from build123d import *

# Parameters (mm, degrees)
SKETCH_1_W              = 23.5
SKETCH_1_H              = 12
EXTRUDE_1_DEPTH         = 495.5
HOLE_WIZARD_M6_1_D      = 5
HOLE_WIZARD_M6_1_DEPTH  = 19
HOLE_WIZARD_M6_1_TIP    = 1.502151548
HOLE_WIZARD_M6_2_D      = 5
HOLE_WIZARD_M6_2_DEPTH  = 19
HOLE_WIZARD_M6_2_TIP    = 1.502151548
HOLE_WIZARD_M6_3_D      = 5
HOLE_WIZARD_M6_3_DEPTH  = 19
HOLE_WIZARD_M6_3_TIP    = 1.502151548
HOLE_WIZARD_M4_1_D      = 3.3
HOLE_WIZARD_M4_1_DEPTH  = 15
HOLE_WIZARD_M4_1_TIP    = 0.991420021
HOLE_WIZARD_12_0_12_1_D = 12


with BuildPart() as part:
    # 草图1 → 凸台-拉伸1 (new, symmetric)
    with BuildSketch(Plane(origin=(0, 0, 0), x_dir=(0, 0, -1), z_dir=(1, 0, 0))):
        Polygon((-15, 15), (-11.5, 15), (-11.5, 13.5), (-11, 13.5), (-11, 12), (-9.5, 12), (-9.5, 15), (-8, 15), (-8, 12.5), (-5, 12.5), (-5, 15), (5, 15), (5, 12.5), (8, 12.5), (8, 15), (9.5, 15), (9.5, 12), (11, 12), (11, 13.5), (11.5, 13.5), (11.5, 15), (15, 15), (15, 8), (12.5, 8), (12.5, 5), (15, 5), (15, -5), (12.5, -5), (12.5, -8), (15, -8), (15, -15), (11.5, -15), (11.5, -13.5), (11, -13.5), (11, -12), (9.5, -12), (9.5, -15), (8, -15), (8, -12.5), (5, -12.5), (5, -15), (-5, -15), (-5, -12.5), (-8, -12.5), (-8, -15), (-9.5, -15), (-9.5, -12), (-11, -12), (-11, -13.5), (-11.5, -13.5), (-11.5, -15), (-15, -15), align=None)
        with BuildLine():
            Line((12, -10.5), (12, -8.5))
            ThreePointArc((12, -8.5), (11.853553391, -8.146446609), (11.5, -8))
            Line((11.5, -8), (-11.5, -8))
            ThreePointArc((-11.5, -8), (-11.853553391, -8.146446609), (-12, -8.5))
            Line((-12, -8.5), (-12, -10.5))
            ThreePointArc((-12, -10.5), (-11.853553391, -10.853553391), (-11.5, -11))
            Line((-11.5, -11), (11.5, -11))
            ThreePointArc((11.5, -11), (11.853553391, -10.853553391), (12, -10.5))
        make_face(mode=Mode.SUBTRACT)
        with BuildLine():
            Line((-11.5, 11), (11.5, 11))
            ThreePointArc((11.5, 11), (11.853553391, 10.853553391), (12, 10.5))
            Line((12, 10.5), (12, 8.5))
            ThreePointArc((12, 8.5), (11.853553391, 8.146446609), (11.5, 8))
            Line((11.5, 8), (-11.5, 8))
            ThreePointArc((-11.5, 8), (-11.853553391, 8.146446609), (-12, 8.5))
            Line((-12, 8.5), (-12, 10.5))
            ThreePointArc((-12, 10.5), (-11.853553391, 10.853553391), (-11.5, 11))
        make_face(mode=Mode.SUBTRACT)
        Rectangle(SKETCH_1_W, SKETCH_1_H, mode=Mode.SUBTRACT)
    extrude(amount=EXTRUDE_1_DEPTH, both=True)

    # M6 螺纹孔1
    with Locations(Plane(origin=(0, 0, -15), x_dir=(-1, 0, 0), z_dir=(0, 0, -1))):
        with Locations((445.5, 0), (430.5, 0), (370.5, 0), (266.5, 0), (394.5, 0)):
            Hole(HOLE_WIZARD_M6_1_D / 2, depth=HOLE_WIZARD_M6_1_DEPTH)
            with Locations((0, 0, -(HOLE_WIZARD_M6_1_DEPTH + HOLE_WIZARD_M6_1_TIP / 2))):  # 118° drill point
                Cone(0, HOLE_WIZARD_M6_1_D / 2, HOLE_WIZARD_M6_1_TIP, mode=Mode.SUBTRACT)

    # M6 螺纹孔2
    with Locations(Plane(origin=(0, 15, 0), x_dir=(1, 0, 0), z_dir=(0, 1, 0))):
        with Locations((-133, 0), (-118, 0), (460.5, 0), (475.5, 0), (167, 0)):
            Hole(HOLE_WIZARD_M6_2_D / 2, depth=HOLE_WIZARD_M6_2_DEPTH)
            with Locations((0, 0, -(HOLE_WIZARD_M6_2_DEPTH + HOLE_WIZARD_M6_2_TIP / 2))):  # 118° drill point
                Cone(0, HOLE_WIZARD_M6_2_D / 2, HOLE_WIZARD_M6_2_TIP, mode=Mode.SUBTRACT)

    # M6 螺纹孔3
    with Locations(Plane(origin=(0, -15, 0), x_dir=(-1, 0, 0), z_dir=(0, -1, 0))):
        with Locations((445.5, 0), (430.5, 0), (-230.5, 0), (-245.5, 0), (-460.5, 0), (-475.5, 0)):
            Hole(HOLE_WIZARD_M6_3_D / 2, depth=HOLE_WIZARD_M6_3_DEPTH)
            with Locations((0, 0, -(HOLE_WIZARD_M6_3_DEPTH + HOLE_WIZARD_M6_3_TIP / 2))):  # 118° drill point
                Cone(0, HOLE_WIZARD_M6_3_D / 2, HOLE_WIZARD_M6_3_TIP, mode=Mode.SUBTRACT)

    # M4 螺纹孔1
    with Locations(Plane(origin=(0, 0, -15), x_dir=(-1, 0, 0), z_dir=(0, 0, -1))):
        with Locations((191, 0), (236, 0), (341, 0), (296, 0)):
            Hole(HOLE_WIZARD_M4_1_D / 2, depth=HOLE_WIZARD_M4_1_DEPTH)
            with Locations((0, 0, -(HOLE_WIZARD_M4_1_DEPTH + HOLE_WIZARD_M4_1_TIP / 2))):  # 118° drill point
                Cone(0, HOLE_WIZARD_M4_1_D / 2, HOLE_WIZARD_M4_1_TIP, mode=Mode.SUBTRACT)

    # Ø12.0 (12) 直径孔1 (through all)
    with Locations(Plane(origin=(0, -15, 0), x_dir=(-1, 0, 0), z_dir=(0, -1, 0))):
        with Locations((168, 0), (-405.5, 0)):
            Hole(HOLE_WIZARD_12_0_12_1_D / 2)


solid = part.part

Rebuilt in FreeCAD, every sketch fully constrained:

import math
import FreeCAD as App
import Part
import Sketcher

V = App.Vector

doc = App.newDocument("Part")
body = doc.addObject("PartDesign::Body", "Body")

# Sketch on YZ plane
sketch1 = body.newObject("Sketcher::SketchObject", "Sketch")
sketch1.AttachmentSupport = (doc.getObject("YZ_Plane"), [""])
sketch1.MapMode = "FlatFace"
sketch1.addGeometry(Part.LineSegment(V(15, 11.5, 0), V(15, 15, 0)), False)
sketch1.addGeometry(Part.LineSegment(V(15, 15, 0), V(-15, 15, 0)), False)
sketch1.addGeometry(Part.LineSegment(V(-15, 15, 0), V(-15, 11.5, 0)), False)
sketch1.addGeometry(Part.LineSegment(V(-15, 11.5, 0), V(-13.5, 11.5, 0)), False)
sketch1.addGeometry(Part.LineSegment(V(-13.5, 11.5, 0), V(-13.5, 11, 0)), False)
sketch1.addGeometry(Part.LineSegment(V(-13.5, 11, 0), V(-12, 11, 0)), False)
sketch1.addGeometry(Part.LineSegment(V(-12, 11, 0), V(-12, 9.5, 0)), False)
sketch1.addGeometry(Part.LineSegment(V(-12, 9.5, 0), V(-15, 9.5, 0)), False)
sketch1.addGeometry(Part.LineSegment(V(-15, 9.5, 0), V(-15, 8, 0)), False)
sketch1.addGeometry(Part.LineSegment(V(-15, 8, 0), V(-12.5, 8, 0)), False)
sketch1.addGeometry(Part.LineSegment(V(-12.5, 8, 0), V(-12.5, 5, 0)), False)
sketch1.addGeometry(Part.LineSegment(V(-12.5, 5, 0), V(-15, 5, 0)), False)
sketch1.addGeometry(Part.LineSegment(V(-15, 5, 0), V(-15, -5, 0)), False)
sketch1.addGeometry(Part.LineSegment(V(-15, -5, 0), V(-12.5, -5, 0)), False)
sketch1.addGeometry(Part.LineSegment(V(-12.5, -5, 0), V(-12.5, -8, 0)), False)
sketch1.addGeometry(Part.LineSegment(V(-12.5, -8, 0), V(-15, -8, 0)), False)
sketch1.addGeometry(Part.LineSegment(V(-15, -8, 0), V(-15, -9.5, 0)), False)
sketch1.addGeometry(Part.LineSegment(V(-15, -9.5, 0), V(-12, -9.5, 0)), False)
sketch1.addGeometry(Part.LineSegment(V(-12, -9.5, 0), V(-12, -11, 0)), False)
sketch1.addGeometry(Part.LineSegment(V(-12, -11, 0), V(-13.5, -11, 0)), False)
sketch1.addGeometry(Part.LineSegment(V(-13.5, -11, 0), V(-13.5, -11.5, 0)), False)
sketch1.addGeometry(Part.LineSegment(V(-13.5, -11.5, 0), V(-15, -11.5, 0)), False)
sketch1.addGeometry(Part.LineSegment(V(-15, -11.5, 0), V(-15, -15, 0)), False)
sketch1.addGeometry(Part.LineSegment(V(-15, -15, 0), V(-8, -15, 0)), False)
sketch1.addGeometry(Part.LineSegment(V(-8, -15, 0), V(-8, -12.5, 0)), False)
sketch1.addGeometry(Part.LineSegment(V(-8, -12.5, 0), V(-5, -12.5, 0)), False)
sketch1.addGeometry(Part.LineSegment(V(-5, -12.5, 0), V(-5, -15, 0)), False)
sketch1.addGeometry(Part.LineSegment(V(-5, -15, 0), V(5, -15, 0)), False)
sketch1.addGeometry(Part.LineSegment(V(5, -15, 0), V(5, -12.5, 0)), False)
sketch1.addGeometry(Part.LineSegment(V(5, -12.5, 0), V(8, -12.5, 0)), False)
sketch1.addGeometry(Part.LineSegment(V(8, -12.5, 0), V(8, -15, 0)), False)
sketch1.addGeometry(Part.LineSegment(V(8, -15, 0), V(15, -15, 0)), False)
sketch1.addGeometry(Part.LineSegment(V(15, -15, 0), V(15, -11.5, 0)), False)
sketch1.addGeometry(Part.LineSegment(V(15, -11.5, 0), V(13.5, -11.5, 0)), False)
sketch1.addGeometry(Part.LineSegment(V(13.5, -11.5, 0), V(13.5, -11, 0)), False)
sketch1.addGeometry(Part.LineSegment(V(13.5, -11, 0), V(12, -11, 0)), False)
sketch1.addGeometry(Part.LineSegment(V(12, -11, 0), V(12, -9.5, 0)), False)
sketch1.addGeometry(Part.LineSegment(V(12, -9.5, 0), V(15, -9.5, 0)), False)
sketch1.addGeometry(Part.LineSegment(V(15, -9.5, 0), V(15, -8, 0)), False)
sketch1.addGeometry(Part.LineSegment(V(15, -8, 0), V(12.5, -8, 0)), False)
sketch1.addGeometry(Part.LineSegment(V(12.5, -8, 0), V(12.5, -5, 0)), False)
sketch1.addGeometry(Part.LineSegment(V(12.5, -5, 0), V(15, -5, 0)), False)
sketch1.addGeometry(Part.LineSegment(V(15, -5, 0), V(15, 5, 0)), False)
sketch1.addGeometry(Part.LineSegment(V(15, 5, 0), V(12.5, 5, 0)), False)
sketch1.addGeometry(Part.LineSegment(V(12.5, 5, 0), V(12.5, 8, 0)), False)
sketch1.addGeometry(Part.LineSegment(V(12.5, 8, 0), V(15, 8, 0)), False)
sketch1.addGeometry(Part.LineSegment(V(15, 8, 0), V(15, 9.5, 0)), False)
sketch1.addGeometry(Part.LineSegment(V(15, 9.5, 0), V(12, 9.5, 0)), False)
sketch1.addGeometry(Part.LineSegment(V(12, 9.5, 0), V(12, 11, 0)), False)
sketch1.addGeometry(Part.LineSegment(V(12, 11, 0), V(13.5, 11, 0)), False)
sketch1.addGeometry(Part.LineSegment(V(13.5, 11, 0), V(13.5, 11.5, 0)), False)
sketch1.addGeometry(Part.LineSegment(V(13.5, 11.5, 0), V(15, 11.5, 0)), False)
sketch1.addGeometry(Part.ArcOfCircle(Part.Circle(V(-10.5, -11.5, 0), V(0, 0, 1), 0.5), math.radians(180), math.radians(270)), False)
sketch1.addGeometry(Part.LineSegment(V(-11, -11.5, 0), V(-11, 11.5, 0)), False)
sketch1.addGeometry(Part.ArcOfCircle(Part.Circle(V(-10.5, 11.5, 0), V(0, 0, 1), 0.5), math.radians(90), math.radians(180)), False)
sketch1.addGeometry(Part.LineSegment(V(-10.5, 12, 0), V(-8.5, 12, 0)), False)
sketch1.addGeometry(Part.ArcOfCircle(Part.Circle(V(-8.5, 11.5, 0), V(0, 0, 1), 0.5), math.radians(0), math.radians(90)), False)
sketch1.addGeometry(Part.LineSegment(V(-8, 11.5, 0), V(-8, -11.5, 0)), False)
sketch1.addGeometry(Part.ArcOfCircle(Part.Circle(V(-8.5, -11.5, 0), V(0, 0, 1), 0.5), math.radians(-90), math.radians(0)), False)
sketch1.addGeometry(Part.LineSegment(V(-8.5, -12, 0), V(-10.5, -12, 0)), False)
sketch1.addGeometry(Part.LineSegment(V(-6, 11.75, 0), V(6, 11.75, 0)), False)
sketch1.addGeometry(Part.LineSegment(V(6, 11.75, 0), V(6, -11.75, 0)), False)
sketch1.addGeometry(Part.LineSegment(V(6, -11.75, 0), V(-6, -11.75, 0)), False)
sketch1.addGeometry(Part.LineSegment(V(-6, -11.75, 0), V(-6, 11.75, 0)), False)
sketch1.addGeometry(Part.LineSegment(V(11, 11.5, 0), V(11, -11.5, 0)), False)
sketch1.addGeometry(Part.ArcOfCircle(Part.Circle(V(10.5, -11.5, 0), V(0, 0, 1), 0.5), math.radians(-90), math.radians(0)), False)
sketch1.addGeometry(Part.LineSegment(V(10.5, -12, 0), V(8.5, -12, 0)), False)
sketch1.addGeometry(Part.ArcOfCircle(Part.Circle(V(8.5, -11.5, 0), V(0, 0, 1), 0.5), math.radians(180), math.radians(270)), False)
sketch1.addGeometry(Part.LineSegment(V(8, -11.5, 0), V(8, 11.5, 0)), False)
sketch1.addGeometry(Part.ArcOfCircle(Part.Circle(V(8.5, 11.5, 0), V(0, 0, 1), 0.5), math.radians(90), math.radians(180)), False)
sketch1.addGeometry(Part.LineSegment(V(8.5, 12, 0), V(10.5, 12, 0)), False)
sketch1.addGeometry(Part.ArcOfCircle(Part.Circle(V(10.5, 11.5, 0), V(0, 0, 1), 0.5), math.radians(0), math.radians(90)), False)
sketch1.addConstraint(Sketcher.Constraint("Coincident", 0, 2, 1, 1))
sketch1.addConstraint(Sketcher.Constraint("Coincident", 1, 2, 2, 1))
sketch1.addConstraint(Sketcher.Constraint("Coincident", 2, 2, 3, 1))
sketch1.addConstraint(Sketcher.Constraint("Coincident", 3, 2, 4, 1))
sketch1.addConstraint(Sketcher.Constraint("Coincident", 4, 2, 5, 1))
sketch1.addConstraint(Sketcher.Constraint("Coincident", 5, 2, 6, 1))
sketch1.addConstraint(Sketcher.Constraint("Coincident", 6, 2, 7, 1))
sketch1.addConstraint(Sketcher.Constraint("Coincident", 7, 2, 8, 1))
sketch1.addConstraint(Sketcher.Constraint("Coincident", 8, 2, 9, 1))
sketch1.addConstraint(Sketcher.Constraint("Coincident", 9, 2, 10, 1))
sketch1.addConstraint(Sketcher.Constraint("Coincident", 10, 2, 11, 1))
sketch1.addConstraint(Sketcher.Constraint("Coincident", 11, 2, 12, 1))
sketch1.addConstraint(Sketcher.Constraint("Coincident", 12, 2, 13, 1))
sketch1.addConstraint(Sketcher.Constraint("Coincident", 13, 2, 14, 1))
sketch1.addConstraint(Sketcher.Constraint("Coincident", 14, 2, 15, 1))
sketch1.addConstraint(Sketcher.Constraint("Coincident", 15, 2, 16, 1))
sketch1.addConstraint(Sketcher.Constraint("Coincident", 16, 2, 17, 1))
sketch1.addConstraint(Sketcher.Constraint("Coincident", 17, 2, 18, 1))
sketch1.addConstraint(Sketcher.Constraint("Coincident", 18, 2, 19, 1))
sketch1.addConstraint(Sketcher.Constraint("Coincident", 19, 2, 20, 1))
sketch1.addConstraint(Sketcher.Constraint("Coincident", 20, 2, 21, 1))
sketch1.addConstraint(Sketcher.Constraint("Coincident", 21, 2, 22, 1))
sketch1.addConstraint(Sketcher.Constraint("Coincident", 22, 2, 23, 1))
sketch1.addConstraint(Sketcher.Constraint("Coincident", 23, 2, 24, 1))
sketch1.addConstraint(Sketcher.Constraint("Coincident", 24, 2, 25, 1))
sketch1.addConstraint(Sketcher.Constraint("Coincident", 25, 2, 26, 1))
sketch1.addConstraint(Sketcher.Constraint("Coincident", 26, 2, 27, 1))
sketch1.addConstraint(Sketcher.Constraint("Coincident", 27, 2, 28, 1))
sketch1.addConstraint(Sketcher.Constraint("Coincident", 28, 2, 29, 1))
sketch1.addConstraint(Sketcher.Constraint("Coincident", 29, 2, 30, 1))
sketch1.addConstraint(Sketcher.Constraint("Coincident", 30, 2, 31, 1))
sketch1.addConstraint(Sketcher.Constraint("Coincident", 31, 2, 32, 1))
sketch1.addConstraint(Sketcher.Constraint("Coincident", 32, 2, 33, 1))
sketch1.addConstraint(Sketcher.Constraint("Coincident", 33, 2, 34, 1))
sketch1.addConstraint(Sketcher.Constraint("Coincident", 34, 2, 35, 1))
sketch1.addConstraint(Sketcher.Constraint("Coincident", 35, 2, 36, 1))
sketch1.addConstraint(Sketcher.Constraint("Coincident", 36, 2, 37, 1))
sketch1.addConstraint(Sketcher.Constraint("Coincident", 37, 2, 38, 1))
sketch1.addConstraint(Sketcher.Constraint("Coincident", 38, 2, 39, 1))
sketch1.addConstraint(Sketcher.Constraint("Coincident", 39, 2, 40, 1))
sketch1.addConstraint(Sketcher.Constraint("Coincident", 40, 2, 41, 1))
sketch1.addConstraint(Sketcher.Constraint("Coincident", 41, 2, 42, 1))
sketch1.addConstraint(Sketcher.Constraint("Coincident", 42, 2, 43, 1))
sketch1.addConstraint(Sketcher.Constraint("Coincident", 43, 2, 44, 1))
sketch1.addConstraint(Sketcher.Constraint("Coincident", 44, 2, 45, 1))
sketch1.addConstraint(Sketcher.Constraint("Coincident", 45, 2, 46, 1))
sketch1.addConstraint(Sketcher.Constraint("Coincident", 46, 2, 47, 1))
sketch1.addConstraint(Sketcher.Constraint("Coincident", 47, 2, 48, 1))
sketch1.addConstraint(Sketcher.Constraint("Coincident", 48, 2, 49, 1))
sketch1.addConstraint(Sketcher.Constraint("Coincident", 49, 2, 50, 1))
sketch1.addConstraint(Sketcher.Constraint("Coincident", 50, 2, 51, 1))
sketch1.addConstraint(Sketcher.Constraint("Coincident", 51, 2, 0, 1))
sketch1.addConstraint(Sketcher.Constraint("Tangent", 52, 1, 53, 1))
sketch1.addConstraint(Sketcher.Constraint("Tangent", 53, 2, 54, 2))
sketch1.addConstraint(Sketcher.Constraint("Tangent", 54, 1, 55, 1))
sketch1.addConstraint(Sketcher.Constraint("Tangent", 55, 2, 56, 2))
sketch1.addConstraint(Sketcher.Constraint("Tangent", 56, 1, 57, 1))
sketch1.addConstraint(Sketcher.Constraint("Tangent", 57, 2, 58, 2))
sketch1.addConstraint(Sketcher.Constraint("Tangent", 58, 1, 59, 1))
sketch1.addConstraint(Sketcher.Constraint("Tangent", 59, 2, 52, 2))
sketch1.addConstraint(Sketcher.Constraint("Coincident", 60, 2, 61, 1))
sketch1.addConstraint(Sketcher.Constraint("Coincident", 61, 2, 62, 1))
sketch1.addConstraint(Sketcher.Constraint("Coincident", 62, 2, 63, 1))
sketch1.addConstraint(Sketcher.Constraint("Coincident", 63, 2, 60, 1))
sketch1.addConstraint(Sketcher.Constraint("Tangent", 64, 2, 65, 2))
sketch1.addConstraint(Sketcher.Constraint("Tangent", 65, 1, 66, 1))
sketch1.addConstraint(Sketcher.Constraint("Tangent", 66, 2, 67, 2))
sketch1.addConstraint(Sketcher.Constraint("Tangent", 67, 1, 68, 1))
sketch1.addConstraint(Sketcher.Constraint("Tangent", 68, 2, 69, 2))
sketch1.addConstraint(Sketcher.Constraint("Tangent", 69, 1, 70, 1))
sketch1.addConstraint(Sketcher.Constraint("Tangent", 70, 2, 71, 2))
sketch1.addConstraint(Sketcher.Constraint("Tangent", 71, 1, 64, 1))
sketch1.addConstraint(Sketcher.Constraint("Vertical", 0))
sketch1.addConstraint(Sketcher.Constraint("Horizontal", 1))
sketch1.addConstraint(Sketcher.Constraint("Vertical", 2))
sketch1.addConstraint(Sketcher.Constraint("Horizontal", 3))
sketch1.addConstraint(Sketcher.Constraint("Vertical", 4))
sketch1.addConstraint(Sketcher.Constraint("Horizontal", 5))
sketch1.addConstraint(Sketcher.Constraint("Vertical", 6))
sketch1.addConstraint(Sketcher.Constraint("Horizontal", 7))
sketch1.addConstraint(Sketcher.Constraint("Vertical", 8))
sketch1.addConstraint(Sketcher.Constraint("Horizontal", 9))
sketch1.addConstraint(Sketcher.Constraint("Vertical", 10))
sketch1.addConstraint(Sketcher.Constraint("Horizontal", 11))
sketch1.addConstraint(Sketcher.Constraint("Vertical", 12))
sketch1.addConstraint(Sketcher.Constraint("Horizontal", 13))
sketch1.addConstraint(Sketcher.Constraint("Vertical", 14))
sketch1.addConstraint(Sketcher.Constraint("Horizontal", 15))
sketch1.addConstraint(Sketcher.Constraint("Vertical", 16))
sketch1.addConstraint(Sketcher.Constraint("Horizontal", 17))
sketch1.addConstraint(Sketcher.Constraint("Vertical", 18))
sketch1.addConstraint(Sketcher.Constraint("Horizontal", 19))
sketch1.addConstraint(Sketcher.Constraint("Vertical", 20))
sketch1.addConstraint(Sketcher.Constraint("Horizontal", 21))
sketch1.addConstraint(Sketcher.Constraint("Vertical", 22))
sketch1.addConstraint(Sketcher.Constraint("Horizontal", 23))
sketch1.addConstraint(Sketcher.Constraint("Vertical", 24))
sketch1.addConstraint(Sketcher.Constraint("Horizontal", 25))
sketch1.addConstraint(Sketcher.Constraint("Vertical", 26))
sketch1.addConstraint(Sketcher.Constraint("Horizontal", 27))
sketch1.addConstraint(Sketcher.Constraint("Vertical", 28))
sketch1.addConstraint(Sketcher.Constraint("Horizontal", 29))
sketch1.addConstraint(Sketcher.Constraint("Vertical", 30))
sketch1.addConstraint(Sketcher.Constraint("Horizontal", 31))
sketch1.addConstraint(Sketcher.Constraint("Vertical", 32))
sketch1.addConstraint(Sketcher.Constraint("Horizontal", 33))
sketch1.addConstraint(Sketcher.Constraint("Vertical", 34))
sketch1.addConstraint(Sketcher.Constraint("Horizontal", 35))
sketch1.addConstraint(Sketcher.Constraint("Vertical", 36))
sketch1.addConstraint(Sketcher.Constraint("Horizontal", 37))
sketch1.addConstraint(Sketcher.Constraint("Vertical", 38))
sketch1.addConstraint(Sketcher.Constraint("Horizontal", 39))
sketch1.addConstraint(Sketcher.Constraint("Vertical", 40))
sketch1.addConstraint(Sketcher.Constraint("Horizontal", 41))
sketch1.addConstraint(Sketcher.Constraint("Vertical", 42))
sketch1.addConstraint(Sketcher.Constraint("Horizontal", 43))
sketch1.addConstraint(Sketcher.Constraint("Vertical", 44))
sketch1.addConstraint(Sketcher.Constraint("Horizontal", 45))
sketch1.addConstraint(Sketcher.Constraint("Vertical", 46))
sketch1.addConstraint(Sketcher.Constraint("Horizontal", 47))
sketch1.addConstraint(Sketcher.Constraint("Vertical", 48))
sketch1.addConstraint(Sketcher.Constraint("Horizontal", 49))
sketch1.addConstraint(Sketcher.Constraint("Vertical", 50))
sketch1.addConstraint(Sketcher.Constraint("Horizontal", 51))
sketch1.addConstraint(Sketcher.Constraint("Vertical", 53))
sketch1.addConstraint(Sketcher.Constraint("Horizontal", 55))
sketch1.addConstraint(Sketcher.Constraint("Vertical", 57))
sketch1.addConstraint(Sketcher.Constraint("Horizontal", 59))
sketch1.addConstraint(Sketcher.Constraint("Horizontal", 60))
sketch1.addConstraint(Sketcher.Constraint("Vertical", 61))
sketch1.addConstraint(Sketcher.Constraint("Horizontal", 62))
sketch1.addConstraint(Sketcher.Constraint("Vertical", 63))
sketch1.addConstraint(Sketcher.Constraint("Vertical", 64))
sketch1.addConstraint(Sketcher.Constraint("Horizontal", 66))
sketch1.addConstraint(Sketcher.Constraint("Vertical", 68))
sketch1.addConstraint(Sketcher.Constraint("Horizontal", 70))
sketch1.addConstraint(Sketcher.Constraint("Equal", 52, 54))
sketch1.addConstraint(Sketcher.Constraint("Equal", 54, 56))
sketch1.addConstraint(Sketcher.Constraint("Equal", 56, 58))
sketch1.addConstraint(Sketcher.Constraint("Equal", 58, 65))
sketch1.addConstraint(Sketcher.Constraint("Equal", 65, 67))
sketch1.addConstraint(Sketcher.Constraint("Equal", 67, 69))
sketch1.addConstraint(Sketcher.Constraint("Equal", 69, 71))
sketch1.addConstraint(Sketcher.Constraint("Symmetric", 54, 3, 65, 3, -1, 1))
sketch1.addConstraint(Sketcher.Constraint("Symmetric", 58, 3, 69, 3, -1, 1))
sketch1.addConstraint(Sketcher.Constraint("Symmetric", 0, 2, 22, 2, -1, 1))
sketch1.addConstraint(Sketcher.Constraint("Symmetric", 1, 2, 31, 2, -1, 1))
sketch1.addConstraint(Sketcher.Constraint("Symmetric", 3, 2, 33, 2, -1, 1))
sketch1.addConstraint(Sketcher.Constraint("Symmetric", 5, 2, 35, 2, -1, 1))
sketch1.addConstraint(Sketcher.Constraint("Symmetric", 7, 2, 37, 2, -1, 1))
sketch1.addConstraint(Sketcher.Constraint("Symmetric", 9, 2, 39, 2, -1, 1))
sketch1.addConstraint(Sketcher.Constraint("Symmetric", 11, 2, 41, 2, -1, 1))
sketch1.addConstraint(Sketcher.Constraint("Symmetric", 13, 2, 43, 2, -1, 1))
sketch1.addConstraint(Sketcher.Constraint("Symmetric", 15, 2, 45, 2, -1, 1))
sketch1.addConstraint(Sketcher.Constraint("Symmetric", 17, 2, 47, 2, -1, 1))
sketch1.addConstraint(Sketcher.Constraint("Symmetric", 19, 2, 49, 2, -1, 1))
sketch1.addConstraint(Sketcher.Constraint("Symmetric", 60, 2, 62, 2, -1, 1))
sketch1.addConstraint(Sketcher.Constraint("Symmetric", 25, 2, 28, 2, -2))
sketch1.addConstraint(Sketcher.Constraint("Symmetric", 21, 2, 32, 2, -2))
sketch1.addConstraint(Sketcher.Constraint("Symmetric", 19, 2, 34, 2, -2))
sketch1.addConstraint(Sketcher.Constraint("Symmetric", 17, 2, 36, 2, -2))
sketch1.addConstraint(Sketcher.Constraint("Symmetric", 15, 2, 38, 2, -2))
sketch1.addConstraint(Sketcher.Constraint("Symmetric", 13, 2, 40, 2, -2))
sketch1.addConstraint(Sketcher.Constraint("Horizontal", 58, 3, 65, 3))
sketch1.addConstraint(Sketcher.Constraint("Horizontal", 71, 3, 2, 2))
sketch1.addConstraint(Sketcher.Constraint("Horizontal", 23, 2, 26, 2))
sketch1.addConstraint(Sketcher.Constraint("Horizontal", 3, 2, 50, 2))
sketch1.addConstraint(Sketcher.Constraint("Vertical", 2, 2, 7, 2))
sketch1.addConstraint(Sketcher.Constraint("Vertical", 8, 2, 11, 2))
sketch1.addConstraint(Sketcher.Constraint("Vertical", 24, 2, 56, 1))
sketch1.addConstraint(Sketcher.Constraint("Vertical", 30, 2, 67, 1))
sketch1.addConstraint(Sketcher.Constraint("Equal", 3, 5))
sketch1.addConstraint(Sketcher.Constraint("Equal", 17, 25))
sketch1.addConstraint(Sketcher.Constraint("Equal", 51, 6))
sketch1.addConstraint(Sketcher.Constraint("Equal", 6, 8))
sketch1.addConstraint(Sketcher.Constraint("Equal", 47, 10))
sketch1.addConstraint(Sketcher.Constraint("Equal", 27, 12))
sketch1.addConstraint(Sketcher.Constraint("Equal", 45, 24))
sketch1.addConstraint(Sketcher.Constraint("Radius", 52, 0.5))
sketch1.addConstraint(Sketcher.Constraint("DistanceX", 1, 2, 1, 1, 30.0))
sketch1.addConstraint(Sketcher.Constraint("DistanceX", 7, 2, 7, 1, 3.0))
sketch1.addConstraint(Sketcher.Constraint("DistanceX", 23, 1, 23, 2, 7.0))
sketch1.addConstraint(Sketcher.Constraint("DistanceX", 55, 1, 55, 2, 2.0))
sketch1.addConstraint(Sketcher.Constraint("DistanceX", 60, 1, 60, 2, 12.0))
sketch1.addConstraint(Sketcher.Constraint("DistanceY", 53, 1, 53, 2, 23.0))
sketch1.addConstraint(Sketcher.Constraint("DistanceX", 9, 1, 9, 2, 2.5))
sketch1.addConstraint(Sketcher.Constraint("DistanceY", 0, 1, 0, 2, 3.5))
sketch1.addConstraint(Sketcher.Constraint("DistanceY", 61, 2, 61, 1, 23.5))
pad1 = body.newObject("PartDesign::Pad", "Pad")
pad1.Profile = sketch1
pad1.Length = 991
pad1.Midplane = True

# Sketch on XY plane
sketch2 = body.newObject("Sketcher::SketchObject", "Sketch001")
sketch2.AttachmentSupport = (doc.getObject("XY_Plane"), [""])
sketch2.MapMode = "FlatFace"
sketch2.AttachmentOffset = App.Placement(V(0, 0, -15), App.Rotation())
sketch2.addGeometry(Part.Circle(V(-445.5, 0, 0), V(0, 0, 1), 2.5), False)
sketch2.addGeometry(Part.Circle(V(-430.5, 0, 0), V(0, 0, 1), 2.5), False)
sketch2.addGeometry(Part.Circle(V(-370.5, 0, 0), V(0, 0, 1), 2.5), False)
sketch2.addGeometry(Part.Circle(V(-266.5, 0, 0), V(0, 0, 1), 2.5), False)
sketch2.addGeometry(Part.Circle(V(-394.5, 0, 0), V(0, 0, 1), 2.5), False)
sketch2.addConstraint(Sketcher.Constraint("Equal", 0, 1))
sketch2.addConstraint(Sketcher.Constraint("Equal", 1, 2))
sketch2.addConstraint(Sketcher.Constraint("Equal", 2, 3))
sketch2.addConstraint(Sketcher.Constraint("Equal", 3, 4))
sketch2.addConstraint(Sketcher.Constraint("PointOnObject", 0, 3, -1))
sketch2.addConstraint(Sketcher.Constraint("PointOnObject", 1, 3, -1))
sketch2.addConstraint(Sketcher.Constraint("PointOnObject", 2, 3, -1))
sketch2.addConstraint(Sketcher.Constraint("PointOnObject", 3, 3, -1))
sketch2.addConstraint(Sketcher.Constraint("PointOnObject", 4, 3, -1))
sketch2.addConstraint(Sketcher.Constraint("Diameter", 0, 5.0))
sketch2.addConstraint(Sketcher.Constraint("DistanceX", 0, 3, 1, 3, 15.0))
sketch2.addConstraint(Sketcher.Constraint("DistanceX", 1, 3, 2, 3, 60.0))
sketch2.addConstraint(Sketcher.Constraint("DistanceX", 2, 3, 3, 3, 104.0))
sketch2.addConstraint(Sketcher.Constraint("DistanceX", 4, 3, 2, 3, 24.0))
sketch2.addConstraint(Sketcher.Constraint("DistanceX", 0, 3, -1, 1, 445.5))
doc.recompute()
hole = body.newObject("PartDesign::Hole", "Hole")
hole.Profile = sketch2
hole.ThreadType = "None"
hole.Diameter = 5
hole.DepthType = "Dimension"
hole.Depth = 19
hole.DrillPoint = "Angled"
hole.DrillPointAngle = 118
hole.Reversed = True

# Sketch on XZ plane
sketch3 = body.newObject("Sketcher::SketchObject", "Sketch002")
sketch3.AttachmentSupport = (doc.getObject("XZ_Plane"), [""])
sketch3.MapMode = "FlatFace"
sketch3.AttachmentOffset = App.Placement(V(0, 0, -15), App.Rotation())
sketch3.addGeometry(Part.Circle(V(-133, 0, 0), V(0, 0, 1), 2.5), False)
sketch3.addGeometry(Part.Circle(V(-118, 0, 0), V(0, 0, 1), 2.5), False)
sketch3.addGeometry(Part.Circle(V(460.5, 0, 0), V(0, 0, 1), 2.5), False)
sketch3.addGeometry(Part.Circle(V(475.5, 0, 0), V(0, 0, 1), 2.5), False)
sketch3.addGeometry(Part.Circle(V(167, 0, 0), V(0, 0, 1), 2.5), False)
sketch3.addConstraint(Sketcher.Constraint("Equal", 0, 1))
sketch3.addConstraint(Sketcher.Constraint("Equal", 1, 2))
sketch3.addConstraint(Sketcher.Constraint("Equal", 2, 3))
sketch3.addConstraint(Sketcher.Constraint("Equal", 3, 4))
sketch3.addConstraint(Sketcher.Constraint("PointOnObject", 0, 3, -1))
sketch3.addConstraint(Sketcher.Constraint("PointOnObject", 1, 3, -1))
sketch3.addConstraint(Sketcher.Constraint("PointOnObject", 2, 3, -1))
sketch3.addConstraint(Sketcher.Constraint("PointOnObject", 3, 3, -1))
sketch3.addConstraint(Sketcher.Constraint("PointOnObject", 4, 3, -1))
sketch3.addConstraint(Sketcher.Constraint("Diameter", 0, 5.0))
sketch3.addConstraint(Sketcher.Constraint("DistanceX", 0, 3, -1, 1, 133.0))
sketch3.addConstraint(Sketcher.Constraint("DistanceX", 1, 3, -1, 1, 118.0))
sketch3.addConstraint(Sketcher.Constraint("DistanceX", -1, 1, 4, 3, 167.0))
sketch3.addConstraint(Sketcher.Constraint("DistanceX", 2, 3, 3, 3, 15.0))
sketch3.addConstraint(Sketcher.Constraint("DistanceX", -1, 1, 2, 3, 460.5))
doc.recompute()
hole2 = body.newObject("PartDesign::Hole", "Hole001")
hole2.Profile = sketch3
hole2.ThreadType = "None"
hole2.Diameter = 5
hole2.DepthType = "Dimension"
hole2.Depth = 19
hole2.DrillPoint = "Angled"
hole2.DrillPointAngle = 118
hole2.Reversed = True

# Sketch on XZ plane
sketch4 = body.newObject("Sketcher::SketchObject", "Sketch003")
sketch4.AttachmentSupport = (doc.getObject("XZ_Plane"), [""])
sketch4.MapMode = "FlatFace"
sketch4.AttachmentOffset = App.Placement(V(0, 0, 15), App.Rotation())
sketch4.addGeometry(Part.Circle(V(-445.5, 0, 0), V(0, 0, 1), 2.5), False)
sketch4.addGeometry(Part.Circle(V(-430.5, 0, 0), V(0, 0, 1), 2.5), False)
sketch4.addGeometry(Part.Circle(V(230.5, 0, 0), V(0, 0, 1), 2.5), False)
sketch4.addGeometry(Part.Circle(V(245.5, 0, 0), V(0, 0, 1), 2.5), False)
sketch4.addGeometry(Part.Circle(V(460.5, 0, 0), V(0, 0, 1), 2.5), False)
sketch4.addGeometry(Part.Circle(V(475.5, 0, 0), V(0, 0, 1), 2.5), False)
sketch4.addConstraint(Sketcher.Constraint("Equal", 0, 1))
sketch4.addConstraint(Sketcher.Constraint("Equal", 1, 2))
sketch4.addConstraint(Sketcher.Constraint("Equal", 2, 3))
sketch4.addConstraint(Sketcher.Constraint("Equal", 3, 4))
sketch4.addConstraint(Sketcher.Constraint("Equal", 4, 5))
sketch4.addConstraint(Sketcher.Constraint("PointOnObject", 0, 3, -1))
sketch4.addConstraint(Sketcher.Constraint("PointOnObject", 1, 3, -1))
sketch4.addConstraint(Sketcher.Constraint("PointOnObject", 2, 3, -1))
sketch4.addConstraint(Sketcher.Constraint("PointOnObject", 3, 3, -1))
sketch4.addConstraint(Sketcher.Constraint("PointOnObject", 4, 3, -1))
sketch4.addConstraint(Sketcher.Constraint("PointOnObject", 5, 3, -1))
sketch4.addConstraint(Sketcher.Constraint("Diameter", 0, 5.0))
sketch4.addConstraint(Sketcher.Constraint("DistanceX", 0, 3, 1, 3, 15.0))
sketch4.addConstraint(Sketcher.Constraint("DistanceX", 1, 3, 2, 3, 661.0))
sketch4.addConstraint(Sketcher.Constraint("DistanceX", 2, 3, 3, 3, 15.0))
sketch4.addConstraint(Sketcher.Constraint("DistanceX", 3, 3, 4, 3, 215.0))
sketch4.addConstraint(Sketcher.Constraint("DistanceX", 4, 3, 5, 3, 15.0))
sketch4.addConstraint(Sketcher.Constraint("DistanceX", 0, 3, -1, 1, 445.5))
doc.recompute()
hole3 = body.newObject("PartDesign::Hole", "Hole002")
hole3.Profile = sketch4
hole3.ThreadType = "None"
hole3.Diameter = 5
hole3.DepthType = "Dimension"
hole3.Depth = 19
hole3.DrillPoint = "Angled"
hole3.DrillPointAngle = 118

# Sketch on XY plane
sketch5 = body.newObject("Sketcher::SketchObject", "Sketch004")
sketch5.AttachmentSupport = (doc.getObject("XY_Plane"), [""])
sketch5.MapMode = "FlatFace"
sketch5.AttachmentOffset = App.Placement(V(0, 0, -15), App.Rotation())
sketch5.addGeometry(Part.Circle(V(-191, 0, 0), V(0, 0, 1), 1.6), False)
sketch5.addGeometry(Part.Circle(V(-236, 0, 0), V(0, 0, 1), 1.6), False)
sketch5.addGeometry(Part.Circle(V(-341, 0, 0), V(0, 0, 1), 1.6), False)
sketch5.addGeometry(Part.Circle(V(-296, 0, 0), V(0, 0, 1), 1.6), False)
sketch5.addConstraint(Sketcher.Constraint("Equal", 0, 1))
sketch5.addConstraint(Sketcher.Constraint("Equal", 1, 2))
sketch5.addConstraint(Sketcher.Constraint("Equal", 2, 3))
sketch5.addConstraint(Sketcher.Constraint("PointOnObject", 0, 3, -1))
sketch5.addConstraint(Sketcher.Constraint("PointOnObject", 1, 3, -1))
sketch5.addConstraint(Sketcher.Constraint("PointOnObject", 2, 3, -1))
sketch5.addConstraint(Sketcher.Constraint("PointOnObject", 3, 3, -1))
sketch5.addConstraint(Sketcher.Constraint("Diameter", 0, 3.3))
sketch5.addConstraint(Sketcher.Constraint("DistanceX", 0, 3, -1, 1, 191.0))
sketch5.addConstraint(Sketcher.Constraint("DistanceX", 1, 3, -1, 1, 236.0))
sketch5.addConstraint(Sketcher.Constraint("DistanceX", 2, 3, -1, 1, 341.0))
sketch5.addConstraint(Sketcher.Constraint("DistanceX", 3, 3, -1, 1, 296.0))
doc.recompute()
hole4 = body.newObject("PartDesign::Hole", "Hole003")
hole4.Profile = sketch5
hole4.ThreadType = "None"
hole4.Diameter = 3.3
hole4.DepthType = "Dimension"
hole4.Depth = 15
hole4.DrillPoint = "Angled"
hole4.DrillPointAngle = 118
hole4.Reversed = True

# Sketch on XZ plane
sketch6 = body.newObject("Sketcher::SketchObject", "Sketch005")
sketch6.AttachmentSupport = (doc.getObject("XZ_Plane"), [""])
sketch6.MapMode = "FlatFace"
sketch6.AttachmentOffset = App.Placement(V(0, 0, 15), App.Rotation())
sketch6.addGeometry(Part.Circle(V(-168, 0, 0), V(0, 0, 1), 6), False)
sketch6.addGeometry(Part.Circle(V(406, 0, 0), V(0, 0, 1), 6), False)
sketch6.addConstraint(Sketcher.Constraint("Equal", 0, 1))
sketch6.addConstraint(Sketcher.Constraint("PointOnObject", 0, 3, -1))
sketch6.addConstraint(Sketcher.Constraint("PointOnObject", 1, 3, -1))
sketch6.addConstraint(Sketcher.Constraint("Diameter", 0, 12.0))
sketch6.addConstraint(Sketcher.Constraint("DistanceX", 0, 3, -1, 1, 168.0))
sketch6.addConstraint(Sketcher.Constraint("DistanceX", -1, 1, 1, 3, 405.5))
doc.recompute()
hole5 = body.newObject("PartDesign::Hole", "Hole004")
hole5.Profile = sketch6
hole5.ThreadType = "None"
hole5.Diameter = 12
hole5.DepthType = "ThroughAll"

doc.recompute()
